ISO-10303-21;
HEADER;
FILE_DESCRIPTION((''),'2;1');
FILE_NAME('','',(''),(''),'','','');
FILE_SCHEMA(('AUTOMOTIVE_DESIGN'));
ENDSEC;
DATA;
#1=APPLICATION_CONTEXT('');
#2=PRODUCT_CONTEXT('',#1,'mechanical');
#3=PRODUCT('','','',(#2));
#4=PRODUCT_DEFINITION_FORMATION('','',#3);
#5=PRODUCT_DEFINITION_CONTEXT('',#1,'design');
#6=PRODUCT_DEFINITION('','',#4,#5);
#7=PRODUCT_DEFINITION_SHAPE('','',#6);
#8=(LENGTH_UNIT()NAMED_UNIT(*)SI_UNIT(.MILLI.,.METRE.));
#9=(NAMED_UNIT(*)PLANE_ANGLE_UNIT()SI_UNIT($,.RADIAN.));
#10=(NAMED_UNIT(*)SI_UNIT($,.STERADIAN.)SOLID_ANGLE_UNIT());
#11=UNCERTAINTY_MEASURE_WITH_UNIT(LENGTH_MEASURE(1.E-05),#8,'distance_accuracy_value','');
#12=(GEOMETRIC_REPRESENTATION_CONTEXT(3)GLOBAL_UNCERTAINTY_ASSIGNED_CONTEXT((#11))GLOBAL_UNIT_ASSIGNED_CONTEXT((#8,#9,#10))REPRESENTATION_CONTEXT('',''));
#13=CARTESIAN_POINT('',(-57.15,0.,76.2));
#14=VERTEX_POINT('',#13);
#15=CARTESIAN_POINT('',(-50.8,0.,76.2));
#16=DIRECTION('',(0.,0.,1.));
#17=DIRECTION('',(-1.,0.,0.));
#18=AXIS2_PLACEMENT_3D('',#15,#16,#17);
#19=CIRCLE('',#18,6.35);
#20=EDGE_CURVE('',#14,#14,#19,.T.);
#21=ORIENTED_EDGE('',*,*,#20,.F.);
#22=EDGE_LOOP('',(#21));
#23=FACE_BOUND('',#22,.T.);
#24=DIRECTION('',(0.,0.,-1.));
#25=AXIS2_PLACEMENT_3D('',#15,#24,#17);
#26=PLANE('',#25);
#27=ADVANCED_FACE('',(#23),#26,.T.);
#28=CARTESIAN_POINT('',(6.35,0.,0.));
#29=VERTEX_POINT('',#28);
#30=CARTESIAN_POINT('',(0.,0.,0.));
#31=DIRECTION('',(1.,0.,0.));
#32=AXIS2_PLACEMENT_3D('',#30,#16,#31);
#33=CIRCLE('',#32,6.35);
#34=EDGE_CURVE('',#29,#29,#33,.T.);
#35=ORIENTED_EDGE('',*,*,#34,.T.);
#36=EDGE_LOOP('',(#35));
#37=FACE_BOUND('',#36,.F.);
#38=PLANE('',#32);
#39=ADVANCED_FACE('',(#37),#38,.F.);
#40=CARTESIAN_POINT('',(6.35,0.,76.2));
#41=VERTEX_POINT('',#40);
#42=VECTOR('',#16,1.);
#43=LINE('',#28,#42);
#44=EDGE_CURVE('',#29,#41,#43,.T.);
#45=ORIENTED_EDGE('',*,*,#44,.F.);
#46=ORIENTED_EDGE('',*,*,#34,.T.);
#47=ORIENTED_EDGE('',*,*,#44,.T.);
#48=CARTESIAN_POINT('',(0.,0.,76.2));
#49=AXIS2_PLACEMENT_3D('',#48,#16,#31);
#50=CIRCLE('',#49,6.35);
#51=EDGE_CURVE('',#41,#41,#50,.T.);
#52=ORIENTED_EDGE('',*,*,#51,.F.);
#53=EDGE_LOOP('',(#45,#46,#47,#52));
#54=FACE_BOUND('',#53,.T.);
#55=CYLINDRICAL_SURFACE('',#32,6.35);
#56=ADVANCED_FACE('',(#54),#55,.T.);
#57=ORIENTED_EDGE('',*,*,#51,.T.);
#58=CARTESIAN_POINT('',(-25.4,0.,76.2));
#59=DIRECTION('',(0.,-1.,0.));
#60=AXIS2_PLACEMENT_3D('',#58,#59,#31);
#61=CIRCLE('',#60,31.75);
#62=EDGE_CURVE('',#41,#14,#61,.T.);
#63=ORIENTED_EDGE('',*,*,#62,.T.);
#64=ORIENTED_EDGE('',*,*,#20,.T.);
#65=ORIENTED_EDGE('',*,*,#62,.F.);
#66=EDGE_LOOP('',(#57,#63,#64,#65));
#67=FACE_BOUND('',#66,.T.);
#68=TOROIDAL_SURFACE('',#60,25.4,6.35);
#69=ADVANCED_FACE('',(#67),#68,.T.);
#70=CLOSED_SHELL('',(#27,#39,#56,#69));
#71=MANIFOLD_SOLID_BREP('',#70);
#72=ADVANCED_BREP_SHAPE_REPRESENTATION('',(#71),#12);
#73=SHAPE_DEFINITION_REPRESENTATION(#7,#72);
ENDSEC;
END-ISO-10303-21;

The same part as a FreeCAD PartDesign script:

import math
import FreeCAD as App
import Part
import Sketcher

V = App.Vector
Q = App.Units.Quantity

doc = App.newDocument("Part")
body = doc.addObject("PartDesign::Body", "Body")

# Sketch on XY plane
sketch1 = body.newObject("Sketcher::SketchObject", "Sketch")
sketch1.AttachmentSupport = (doc.getObject("XY_Plane"), [""])
sketch1.MapMode = "FlatFace"
sketch1.addGeometry(Part.Circle(V(0, 0, 0), V(0, 0, 1), 6), False)
sketch1.addConstraint([
    Sketcher.Constraint("Coincident", 0, 3, -1, 1),
    Sketcher.Constraint("Diameter", 0, Q("0.5 in")),
])

# Sketch on XZ plane
sketch2 = body.newObject("Sketcher::SketchObject", "Sketch001")
sketch2.AttachmentSupport = (doc.getObject("XZ_Plane"), [""])
sketch2.MapMode = "FlatFace"
sketch2.addGeometry([
    Part.LineSegment(V(0, 0, 0), V(0, 76, 0)),
    Part.ArcOfCircle(Part.Circle(V(-25, 76, 0), V(0, 0, 1), 25), math.radians(0), math.radians(180)),
], False)
sketch2.addConstraint([
    Sketcher.Constraint("Tangent", 0, 2, 1, 1),
    Sketcher.Constraint("Vertical", 0),
    Sketcher.Constraint("Coincident", 0, 1, -1, 1),
    Sketcher.Constraint("Horizontal", 0, 2, 1, 2),
    Sketcher.Constraint("Radius", 1, Q("1 in")),
    Sketcher.Constraint("DistanceY", 0, 1, 0, 2, Q("3 in")),
])
doc.recompute()

additivepipe = body.newObject("PartDesign::AdditivePipe", "AdditivePipe")
additivepipe.Profile = sketch1
additivepipe.Spine = (sketch2, ["Edge1", "Edge2"])

doc.recompute()
